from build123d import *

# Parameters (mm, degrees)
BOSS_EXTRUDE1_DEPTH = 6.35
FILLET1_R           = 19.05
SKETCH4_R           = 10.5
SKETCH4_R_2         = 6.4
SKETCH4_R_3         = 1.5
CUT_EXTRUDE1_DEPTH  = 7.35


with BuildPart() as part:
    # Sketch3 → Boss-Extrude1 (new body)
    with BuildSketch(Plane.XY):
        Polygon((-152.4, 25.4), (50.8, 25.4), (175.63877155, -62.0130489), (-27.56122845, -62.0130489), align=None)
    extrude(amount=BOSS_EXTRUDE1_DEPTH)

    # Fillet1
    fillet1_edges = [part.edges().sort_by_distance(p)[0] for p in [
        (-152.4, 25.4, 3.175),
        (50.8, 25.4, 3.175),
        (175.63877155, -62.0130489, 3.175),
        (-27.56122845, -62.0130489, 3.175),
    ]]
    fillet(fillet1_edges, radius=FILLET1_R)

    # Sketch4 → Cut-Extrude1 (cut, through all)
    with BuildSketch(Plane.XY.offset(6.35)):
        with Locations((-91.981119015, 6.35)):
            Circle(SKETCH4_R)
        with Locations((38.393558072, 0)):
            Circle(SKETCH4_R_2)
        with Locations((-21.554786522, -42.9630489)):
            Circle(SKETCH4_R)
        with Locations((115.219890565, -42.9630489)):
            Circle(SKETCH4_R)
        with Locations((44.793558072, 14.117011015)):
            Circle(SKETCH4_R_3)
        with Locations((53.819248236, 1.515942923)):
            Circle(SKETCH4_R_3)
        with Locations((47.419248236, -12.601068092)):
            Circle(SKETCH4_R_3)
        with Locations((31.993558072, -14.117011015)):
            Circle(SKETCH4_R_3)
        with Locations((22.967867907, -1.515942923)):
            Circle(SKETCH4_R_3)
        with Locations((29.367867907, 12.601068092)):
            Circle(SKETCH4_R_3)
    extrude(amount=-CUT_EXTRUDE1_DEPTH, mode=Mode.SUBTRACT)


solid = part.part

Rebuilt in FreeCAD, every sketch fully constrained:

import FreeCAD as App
import Part
import Sketcher

V = App.Vector
Q = App.Units.Quantity


def edges_at(feature, points):
    """Names of the edges that pass closest to the given points."""
    edges = feature.Shape.Edges
    near = lambda p: min(range(len(edges)), key=lambda i: edges[i].distToShape(Part.Vertex(*p))[0])
    return sorted({f"Edge{near(p) + 1}" for p in points})

doc = App.newDocument("Part")
body = doc.addObject("PartDesign::Body", "Body")

# Sketch on XY plane
sketch1 = body.newObject("Sketcher::SketchObject", "Sketch")
sketch1.AttachmentSupport = (doc.getObject("XY_Plane"), [""])
sketch1.MapMode = "FlatFace"
sketch1.addGeometry([
    Part.LineSegment(V(50.8, 25.4, 0), V(-152.4, 25.4, 0)),
    Part.LineSegment(V(-152.4, 25.4, 0), V(-27.561228, -62.013049, 0)),
    Part.LineSegment(V(-27.561228, -62.013049, 0), V(175.638772, -62.013049, 0)),
    Part.LineSegment(V(175.638772, -62.013049, 0), V(50.8, 25.4, 0)),
], False)
sketch1.addConstraint([
    Sketcher.Constraint("Coincident", 0, 2, 1, 1),
    Sketcher.Constraint("Coincident", 1, 2, 2, 1),
    Sketcher.Constraint("Coincident", 2, 2, 3, 1),
    Sketcher.Constraint("Coincident", 3, 2, 0, 1),
    Sketcher.Constraint("Horizontal", 0),
    Sketcher.Constraint("Horizontal", 2),
    Sketcher.Constraint("Parallel", 1, 3),
    Sketcher.Constraint("DistanceX", 0, 2, 0, 1, Q("8 in")),
    Sketcher.Constraint("Distance", 1, Q("6 in")),
    Sketcher.Constraint("DistanceX", 0, 2, -1, 1, Q("6 in")),
    Sketcher.Constraint("DistanceY", -1, 1, 0, 2, Q("1 in")),
    Sketcher.Constraint("Angle", 1, Q("-35 deg")),
])
pad1 = body.newObject("PartDesign::Pad", "Pad")
pad1.Profile = sketch1
pad1.Length = Q("0.25 in")
doc.recompute()

fillet = body.newObject("PartDesign::Fillet", "Fillet")
fillet.Base = (pad1, edges_at(pad1, [
    (-152.4, 25.4, 3.175),
    (50.8, 25.4, 3.175),
    (175.639, -62.013, 3.175),
    (-27.561, -62.013, 3.175),
]))
fillet.Radius = Q("0.75 in")

# Sketch on XY plane
sketch2 = body.newObject("Sketcher::SketchObject", "Sketch001")
sketch2.AttachmentSupport = (doc.getObject("XY_Plane"), [""])
sketch2.MapMode = "FlatFace"
sketch2.AttachmentOffset = App.Placement(V(0, 0, 0.25 * 25.4), App.Rotation())
sketch2.addGeometry([
    Part.Circle(V(-91.981119, 6.35, 0), V(0, 0, 1), 10.5),  # 0
    Part.Circle(V(38.393558, 0, 0), V(0, 0, 1), 6.4),  # 1
    Part.Circle(V(-21.554787, -42.963049, 0), V(0, 0, 1), 10.5),  # 2
    Part.Circle(V(115.219891, -42.963049, 0), V(0, 0, 1), 10.5),  # 3
    Part.Circle(V(44.793558, 14.117011, 0), V(0, 0, 1), 1.5),  # 4
    Part.Circle(V(53.819248, 1.515943, 0), V(0, 0, 1), 1.5),  # 5
    Part.Circle(V(47.419248, -12.601068, 0), V(0, 0, 1), 1.5),  # 6
    Part.Circle(V(31.993558, -14.117011, 0), V(0, 0, 1), 1.5),  # 7
    Part.Circle(V(22.967868, -1.515943, 0), V(0, 0, 1), 1.5),  # 8
    Part.Circle(V(29.367868, 12.601068, 0), V(0, 0, 1), 1.5),  # 9
], False)
sketch2.addConstraint([
    Sketcher.Constraint("Equal", 0, 2),
    Sketcher.Constraint("Equal", 2, 3),
    Sketcher.Constraint("Equal", 4, 5),
    Sketcher.Constraint("Equal", 5, 6),
    Sketcher.Constraint("Equal", 6, 7),
    Sketcher.Constraint("Equal", 7, 8),
    Sketcher.Constraint("Equal", 8, 9),
    Sketcher.Constraint("PointOnObject", 1, 3, -1),
    Sketcher.Constraint("Horizontal", 2, 3, 3, 3),
    Sketcher.Constraint("Diameter", 0, Q("21 mm")),
    Sketcher.Constraint("Diameter", 1, Q("12.8 mm")),
    Sketcher.Constraint("Diameter", 4, Q("3 mm")),
    Sketcher.Constraint("DistanceY", -1, 1, 0, 3, Q("0.25 in")),
    Sketcher.Constraint("DistanceX", 1, 3, 4, 3, Q("6.4 mm")),
    Sketcher.Constraint("DistanceX", 6, 3, 5, 3, Q("6.4 mm")),
    Sketcher.Constraint("DistanceX", 7, 3, 1, 3, Q("6.4 mm")),
    Sketcher.Constraint("DistanceX", 8, 3, 9, 3, Q("6.4 mm")),
    Sketcher.Constraint("DistanceX", 0, 3, -1, 1, Q("91.981119 mm")),
    Sketcher.Constraint("DistanceX", -1, 1, 1, 3, Q("38.393558 mm")),
    Sketcher.Constraint("DistanceY", 2, 3, -1, 1, Q("42.963049 mm")),
    Sketcher.Constraint("DistanceX", -1, 1, 3, 3, Q("115.219891 mm")),
    Sketcher.Constraint("DistanceY", -1, 1, 4, 3, Q("14.117011 mm")),
    Sketcher.Constraint("DistanceX", -1, 1, 5, 3, Q("53.819248 mm")),
    Sketcher.Constraint("DistanceY", 6, 3, -1, 1, Q("12.601068 mm")),
    Sketcher.Constraint("DistanceY", 7, 3, -1, 1, Q("14.117011 mm")),
    Sketcher.Constraint("DistanceY", -1, 1, 9, 3, Q("12.601068 mm")),
    Sketcher.Constraint("DistanceY", 5, 3, 4, 3, Q("12.601068 mm")),
    Sketcher.Constraint("DistanceX", 8, 3, 1, 3, Q("15.42569 mm")),
    Sketcher.Constraint("DistanceY", 7, 3, 8, 3, Q("12.601068 mm")),
    Sketcher.Constraint("DistanceX", 2, 3, -1, 1, Q("21.554787 mm")),
])
pocket1 = body.newObject("PartDesign::Pocket", "Pocket")
pocket1.Profile = sketch2
pocket1.Type = "ThroughAll"

doc.recompute()
